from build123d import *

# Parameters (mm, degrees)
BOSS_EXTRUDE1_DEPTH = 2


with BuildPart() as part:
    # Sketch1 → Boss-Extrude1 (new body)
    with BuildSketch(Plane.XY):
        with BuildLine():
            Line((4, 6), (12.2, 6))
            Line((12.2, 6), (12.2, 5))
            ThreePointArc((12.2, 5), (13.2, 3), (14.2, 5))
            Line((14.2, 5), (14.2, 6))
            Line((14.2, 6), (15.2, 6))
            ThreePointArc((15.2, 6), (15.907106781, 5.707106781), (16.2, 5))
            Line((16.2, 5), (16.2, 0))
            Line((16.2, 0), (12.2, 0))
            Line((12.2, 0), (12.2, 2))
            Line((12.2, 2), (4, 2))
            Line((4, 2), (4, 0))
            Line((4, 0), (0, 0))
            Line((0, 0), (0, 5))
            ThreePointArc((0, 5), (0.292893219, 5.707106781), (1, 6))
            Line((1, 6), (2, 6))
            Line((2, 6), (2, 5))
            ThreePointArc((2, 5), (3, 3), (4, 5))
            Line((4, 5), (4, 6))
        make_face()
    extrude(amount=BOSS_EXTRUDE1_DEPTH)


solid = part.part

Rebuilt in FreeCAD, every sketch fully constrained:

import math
import FreeCAD as App
import Part
import Sketcher
from FreeCAD import Vector
Q = App.Units.Quantity

doc = App.newDocument("Part")
body = doc.addObject("PartDesign::Body", "Body")

# Sketch on XY plane
sketch1 = doc.addObject("Sketcher::SketchObject", "Sketch")
body.addObject(sketch1)
sketch1.AttachmentSupport = (doc.XY_Plane, [""])
sketch1.MapMode = "FlatFace"
sketch1.addGeometry(Part.LineSegment(Vector(12.2, 6, 0), Vector(4, 6, 0)), False)
sketch1.addGeometry(Part.LineSegment(Vector(4, 6, 0), Vector(4, 5, 0)), False)
sketch1.addGeometry(Part.ArcOfCircle(Part.Circle(Vector(3, 4.25, 0), Vector(0, 0, 1), 1.25), math.radians(143.130102), math.radians(396.869898)), False)
sketch1.addGeometry(Part.LineSegment(Vector(2, 5, 0), Vector(2, 6, 0)), False)
sketch1.addGeometry(Part.LineSegment(Vector(2, 6, 0), Vector(1, 6, 0)), False)
sketch1.addGeometry(Part.ArcOfCircle(Part.Circle(Vector(1, 5, 0), Vector(0, 0, 1), 1), math.radians(90), math.radians(180)), False)
sketch1.addGeometry(Part.LineSegment(Vector(0, 5, 0), Vector(0, 0, 0)), False)
sketch1.addGeometry(Part.LineSegment(Vector(0, 0, 0), Vector(4, 0, 0)), False)
sketch1.addGeometry(Part.LineSegment(Vector(4, 0, 0), Vector(4, 2, 0)), False)
sketch1.addGeometry(Part.LineSegment(Vector(4, 2, 0), Vector(12.2, 2, 0)), False)
sketch1.addGeometry(Part.LineSegment(Vector(12.2, 2, 0), Vector(12.2, 0, 0)), False)
sketch1.addGeometry(Part.LineSegment(Vector(12.2, 0, 0), Vector(16.2, 0, 0)), False)
sketch1.addGeometry(Part.LineSegment(Vector(16.2, 0, 0), Vector(16.2, 5, 0)), False)
sketch1.addGeometry(Part.ArcOfCircle(Part.Circle(Vector(15.2, 5, 0), Vector(0, 0, 1), 1), math.radians(0), math.radians(90)), False)
sketch1.addGeometry(Part.LineSegment(Vector(15.2, 6, 0), Vector(14.2, 6, 0)), False)
sketch1.addGeometry(Part.LineSegment(Vector(14.2, 6, 0), Vector(14.2, 5, 0)), False)
sketch1.addGeometry(Part.ArcOfCircle(Part.Circle(Vector(13.2, 4.25, 0), Vector(0, 0, 1), 1.25), math.radians(143.130102), math.radians(396.869898)), False)
sketch1.addGeometry(Part.LineSegment(Vector(12.2, 5, 0), Vector(12.2, 6, 0)), False)
sketch1.addConstraint(Sketcher.Constraint("Coincident", 0, 2, 1, 1))
sketch1.addConstraint(Sketcher.Constraint("Coincident", 1, 2, 2, 2))
sketch1.addConstraint(Sketcher.Constraint("Coincident", 2, 1, 3, 1))
sketch1.addConstraint(Sketcher.Constraint("Coincident", 3, 2, 4, 1))
sketch1.addConstraint(Sketcher.Constraint("Tangent", 4, 2, 5, 1))
sketch1.addConstraint(Sketcher.Constraint("Tangent", 5, 2, 6, 1))
sketch1.addConstraint(Sketcher.Constraint("Coincident", 6, 2, 7, 1))
sketch1.addConstraint(Sketcher.Constraint("Coincident", 7, 2, 8, 1))
sketch1.addConstraint(Sketcher.Constraint("Coincident", 8, 2, 9, 1))
sketch1.addConstraint(Sketcher.Constraint("Coincident", 9, 2, 10, 1))
sketch1.addConstraint(Sketcher.Constraint("Coincident", 10, 2, 11, 1))
sketch1.addConstraint(Sketcher.Constraint("Coincident", 11, 2, 12, 1))
sketch1.addConstraint(Sketcher.Constraint("Tangent", 12, 2, 13, 1))
sketch1.addConstraint(Sketcher.Constraint("Tangent", 13, 2, 14, 1))
sketch1.addConstraint(Sketcher.Constraint("Coincident", 14, 2, 15, 1))
sketch1.addConstraint(Sketcher.Constraint("Coincident", 15, 2, 16, 2))
sketch1.addConstraint(Sketcher.Constraint("Coincident", 16, 1, 17, 1))
sketch1.addConstraint(Sketcher.Constraint("Coincident", 17, 2, 0, 1))
sketch1.addConstraint(Sketcher.Constraint("Horizontal", 0))
sketch1.addConstraint(Sketcher.Constraint("Vertical", 1))
sketch1.addConstraint(Sketcher.Constraint("Vertical", 3))
sketch1.addConstraint(Sketcher.Constraint("Horizontal", 4))
sketch1.addConstraint(Sketcher.Constraint("Vertical", 6))
sketch1.addConstraint(Sketcher.Constraint("Horizontal", 7))
sketch1.addConstraint(Sketcher.Constraint("Vertical", 8))
sketch1.addConstraint(Sketcher.Constraint("Horizontal", 9))
sketch1.addConstraint(Sketcher.Constraint("Vertical", 10))
sketch1.addConstraint(Sketcher.Constraint("Horizontal", 11))
sketch1.addConstraint(Sketcher.Constraint("Vertical", 12))
sketch1.addConstraint(Sketcher.Constraint("Horizontal", 14))
sketch1.addConstraint(Sketcher.Constraint("Vertical", 15))
sketch1.addConstraint(Sketcher.Constraint("Vertical", 17))
sketch1.addConstraint(Sketcher.Constraint("Coincident", 6, 2, -1, 1))
sketch1.addConstraint(Sketcher.Constraint("Equal", 5, 13))
sketch1.addConstraint(Sketcher.Constraint("Equal", 2, 16))
sketch1.addConstraint(Sketcher.Constraint("PointOnObject", 10, 2, -1))
sketch1.addConstraint(Sketcher.Constraint("Horizontal", 5, 3, 13, 3))
sketch1.addConstraint(Sketcher.Constraint("Horizontal", 2, 3, 16, 3))
sketch1.addConstraint(Sketcher.Constraint("Horizontal", 13, 3, 1, 2))
sketch1.addConstraint(Sketcher.Constraint("Horizontal", 1, 2, 2, 1))
sketch1.addConstraint(Sketcher.Constraint("Horizontal", 0, 2, 3, 2))
sketch1.addConstraint(Sketcher.Constraint("Horizontal", 12, 2, 15, 2))
sketch1.addConstraint(Sketcher.Constraint("Horizontal", 15, 2, 16, 1))
sketch1.addConstraint(Sketcher.Constraint("Vertical", 1, 2, 7, 2))
sketch1.addConstraint(Sketcher.Constraint("Vertical", 10, 2, 16, 1))
sketch1.addConstraint(Sketcher.Constraint("Equal", 7, 11))
sketch1.addConstraint(Sketcher.Constraint("Equal", 14, 1))
sketch1.addConstraint(Sketcher.Constraint("Radius", 5, Q("1 mm")))
sketch1.addConstraint(Sketcher.Constraint("DistanceX", 7, 1, 7, 2, Q("4 mm")))
sketch1.addConstraint(Sketcher.Constraint("DistanceY", 6, 2, 6, 1, Q("5 mm")))
sketch1.addConstraint(Sketcher.Constraint("DistanceY", 8, 1, 8, 2, Q("2 mm")))
sketch1.addConstraint(Sketcher.Constraint("Radius", 2, Q("1.25 mm")))
sketch1.addConstraint(Sketcher.Constraint("DistanceX", 0, 2, 0, 1, Q("8.2 mm")))
pad1 = doc.addObject("PartDesign::Pad", "Pad")
body.addObject(pad1)
pad1.Profile = sketch1
pad1.Length = 2

doc.recompute()
